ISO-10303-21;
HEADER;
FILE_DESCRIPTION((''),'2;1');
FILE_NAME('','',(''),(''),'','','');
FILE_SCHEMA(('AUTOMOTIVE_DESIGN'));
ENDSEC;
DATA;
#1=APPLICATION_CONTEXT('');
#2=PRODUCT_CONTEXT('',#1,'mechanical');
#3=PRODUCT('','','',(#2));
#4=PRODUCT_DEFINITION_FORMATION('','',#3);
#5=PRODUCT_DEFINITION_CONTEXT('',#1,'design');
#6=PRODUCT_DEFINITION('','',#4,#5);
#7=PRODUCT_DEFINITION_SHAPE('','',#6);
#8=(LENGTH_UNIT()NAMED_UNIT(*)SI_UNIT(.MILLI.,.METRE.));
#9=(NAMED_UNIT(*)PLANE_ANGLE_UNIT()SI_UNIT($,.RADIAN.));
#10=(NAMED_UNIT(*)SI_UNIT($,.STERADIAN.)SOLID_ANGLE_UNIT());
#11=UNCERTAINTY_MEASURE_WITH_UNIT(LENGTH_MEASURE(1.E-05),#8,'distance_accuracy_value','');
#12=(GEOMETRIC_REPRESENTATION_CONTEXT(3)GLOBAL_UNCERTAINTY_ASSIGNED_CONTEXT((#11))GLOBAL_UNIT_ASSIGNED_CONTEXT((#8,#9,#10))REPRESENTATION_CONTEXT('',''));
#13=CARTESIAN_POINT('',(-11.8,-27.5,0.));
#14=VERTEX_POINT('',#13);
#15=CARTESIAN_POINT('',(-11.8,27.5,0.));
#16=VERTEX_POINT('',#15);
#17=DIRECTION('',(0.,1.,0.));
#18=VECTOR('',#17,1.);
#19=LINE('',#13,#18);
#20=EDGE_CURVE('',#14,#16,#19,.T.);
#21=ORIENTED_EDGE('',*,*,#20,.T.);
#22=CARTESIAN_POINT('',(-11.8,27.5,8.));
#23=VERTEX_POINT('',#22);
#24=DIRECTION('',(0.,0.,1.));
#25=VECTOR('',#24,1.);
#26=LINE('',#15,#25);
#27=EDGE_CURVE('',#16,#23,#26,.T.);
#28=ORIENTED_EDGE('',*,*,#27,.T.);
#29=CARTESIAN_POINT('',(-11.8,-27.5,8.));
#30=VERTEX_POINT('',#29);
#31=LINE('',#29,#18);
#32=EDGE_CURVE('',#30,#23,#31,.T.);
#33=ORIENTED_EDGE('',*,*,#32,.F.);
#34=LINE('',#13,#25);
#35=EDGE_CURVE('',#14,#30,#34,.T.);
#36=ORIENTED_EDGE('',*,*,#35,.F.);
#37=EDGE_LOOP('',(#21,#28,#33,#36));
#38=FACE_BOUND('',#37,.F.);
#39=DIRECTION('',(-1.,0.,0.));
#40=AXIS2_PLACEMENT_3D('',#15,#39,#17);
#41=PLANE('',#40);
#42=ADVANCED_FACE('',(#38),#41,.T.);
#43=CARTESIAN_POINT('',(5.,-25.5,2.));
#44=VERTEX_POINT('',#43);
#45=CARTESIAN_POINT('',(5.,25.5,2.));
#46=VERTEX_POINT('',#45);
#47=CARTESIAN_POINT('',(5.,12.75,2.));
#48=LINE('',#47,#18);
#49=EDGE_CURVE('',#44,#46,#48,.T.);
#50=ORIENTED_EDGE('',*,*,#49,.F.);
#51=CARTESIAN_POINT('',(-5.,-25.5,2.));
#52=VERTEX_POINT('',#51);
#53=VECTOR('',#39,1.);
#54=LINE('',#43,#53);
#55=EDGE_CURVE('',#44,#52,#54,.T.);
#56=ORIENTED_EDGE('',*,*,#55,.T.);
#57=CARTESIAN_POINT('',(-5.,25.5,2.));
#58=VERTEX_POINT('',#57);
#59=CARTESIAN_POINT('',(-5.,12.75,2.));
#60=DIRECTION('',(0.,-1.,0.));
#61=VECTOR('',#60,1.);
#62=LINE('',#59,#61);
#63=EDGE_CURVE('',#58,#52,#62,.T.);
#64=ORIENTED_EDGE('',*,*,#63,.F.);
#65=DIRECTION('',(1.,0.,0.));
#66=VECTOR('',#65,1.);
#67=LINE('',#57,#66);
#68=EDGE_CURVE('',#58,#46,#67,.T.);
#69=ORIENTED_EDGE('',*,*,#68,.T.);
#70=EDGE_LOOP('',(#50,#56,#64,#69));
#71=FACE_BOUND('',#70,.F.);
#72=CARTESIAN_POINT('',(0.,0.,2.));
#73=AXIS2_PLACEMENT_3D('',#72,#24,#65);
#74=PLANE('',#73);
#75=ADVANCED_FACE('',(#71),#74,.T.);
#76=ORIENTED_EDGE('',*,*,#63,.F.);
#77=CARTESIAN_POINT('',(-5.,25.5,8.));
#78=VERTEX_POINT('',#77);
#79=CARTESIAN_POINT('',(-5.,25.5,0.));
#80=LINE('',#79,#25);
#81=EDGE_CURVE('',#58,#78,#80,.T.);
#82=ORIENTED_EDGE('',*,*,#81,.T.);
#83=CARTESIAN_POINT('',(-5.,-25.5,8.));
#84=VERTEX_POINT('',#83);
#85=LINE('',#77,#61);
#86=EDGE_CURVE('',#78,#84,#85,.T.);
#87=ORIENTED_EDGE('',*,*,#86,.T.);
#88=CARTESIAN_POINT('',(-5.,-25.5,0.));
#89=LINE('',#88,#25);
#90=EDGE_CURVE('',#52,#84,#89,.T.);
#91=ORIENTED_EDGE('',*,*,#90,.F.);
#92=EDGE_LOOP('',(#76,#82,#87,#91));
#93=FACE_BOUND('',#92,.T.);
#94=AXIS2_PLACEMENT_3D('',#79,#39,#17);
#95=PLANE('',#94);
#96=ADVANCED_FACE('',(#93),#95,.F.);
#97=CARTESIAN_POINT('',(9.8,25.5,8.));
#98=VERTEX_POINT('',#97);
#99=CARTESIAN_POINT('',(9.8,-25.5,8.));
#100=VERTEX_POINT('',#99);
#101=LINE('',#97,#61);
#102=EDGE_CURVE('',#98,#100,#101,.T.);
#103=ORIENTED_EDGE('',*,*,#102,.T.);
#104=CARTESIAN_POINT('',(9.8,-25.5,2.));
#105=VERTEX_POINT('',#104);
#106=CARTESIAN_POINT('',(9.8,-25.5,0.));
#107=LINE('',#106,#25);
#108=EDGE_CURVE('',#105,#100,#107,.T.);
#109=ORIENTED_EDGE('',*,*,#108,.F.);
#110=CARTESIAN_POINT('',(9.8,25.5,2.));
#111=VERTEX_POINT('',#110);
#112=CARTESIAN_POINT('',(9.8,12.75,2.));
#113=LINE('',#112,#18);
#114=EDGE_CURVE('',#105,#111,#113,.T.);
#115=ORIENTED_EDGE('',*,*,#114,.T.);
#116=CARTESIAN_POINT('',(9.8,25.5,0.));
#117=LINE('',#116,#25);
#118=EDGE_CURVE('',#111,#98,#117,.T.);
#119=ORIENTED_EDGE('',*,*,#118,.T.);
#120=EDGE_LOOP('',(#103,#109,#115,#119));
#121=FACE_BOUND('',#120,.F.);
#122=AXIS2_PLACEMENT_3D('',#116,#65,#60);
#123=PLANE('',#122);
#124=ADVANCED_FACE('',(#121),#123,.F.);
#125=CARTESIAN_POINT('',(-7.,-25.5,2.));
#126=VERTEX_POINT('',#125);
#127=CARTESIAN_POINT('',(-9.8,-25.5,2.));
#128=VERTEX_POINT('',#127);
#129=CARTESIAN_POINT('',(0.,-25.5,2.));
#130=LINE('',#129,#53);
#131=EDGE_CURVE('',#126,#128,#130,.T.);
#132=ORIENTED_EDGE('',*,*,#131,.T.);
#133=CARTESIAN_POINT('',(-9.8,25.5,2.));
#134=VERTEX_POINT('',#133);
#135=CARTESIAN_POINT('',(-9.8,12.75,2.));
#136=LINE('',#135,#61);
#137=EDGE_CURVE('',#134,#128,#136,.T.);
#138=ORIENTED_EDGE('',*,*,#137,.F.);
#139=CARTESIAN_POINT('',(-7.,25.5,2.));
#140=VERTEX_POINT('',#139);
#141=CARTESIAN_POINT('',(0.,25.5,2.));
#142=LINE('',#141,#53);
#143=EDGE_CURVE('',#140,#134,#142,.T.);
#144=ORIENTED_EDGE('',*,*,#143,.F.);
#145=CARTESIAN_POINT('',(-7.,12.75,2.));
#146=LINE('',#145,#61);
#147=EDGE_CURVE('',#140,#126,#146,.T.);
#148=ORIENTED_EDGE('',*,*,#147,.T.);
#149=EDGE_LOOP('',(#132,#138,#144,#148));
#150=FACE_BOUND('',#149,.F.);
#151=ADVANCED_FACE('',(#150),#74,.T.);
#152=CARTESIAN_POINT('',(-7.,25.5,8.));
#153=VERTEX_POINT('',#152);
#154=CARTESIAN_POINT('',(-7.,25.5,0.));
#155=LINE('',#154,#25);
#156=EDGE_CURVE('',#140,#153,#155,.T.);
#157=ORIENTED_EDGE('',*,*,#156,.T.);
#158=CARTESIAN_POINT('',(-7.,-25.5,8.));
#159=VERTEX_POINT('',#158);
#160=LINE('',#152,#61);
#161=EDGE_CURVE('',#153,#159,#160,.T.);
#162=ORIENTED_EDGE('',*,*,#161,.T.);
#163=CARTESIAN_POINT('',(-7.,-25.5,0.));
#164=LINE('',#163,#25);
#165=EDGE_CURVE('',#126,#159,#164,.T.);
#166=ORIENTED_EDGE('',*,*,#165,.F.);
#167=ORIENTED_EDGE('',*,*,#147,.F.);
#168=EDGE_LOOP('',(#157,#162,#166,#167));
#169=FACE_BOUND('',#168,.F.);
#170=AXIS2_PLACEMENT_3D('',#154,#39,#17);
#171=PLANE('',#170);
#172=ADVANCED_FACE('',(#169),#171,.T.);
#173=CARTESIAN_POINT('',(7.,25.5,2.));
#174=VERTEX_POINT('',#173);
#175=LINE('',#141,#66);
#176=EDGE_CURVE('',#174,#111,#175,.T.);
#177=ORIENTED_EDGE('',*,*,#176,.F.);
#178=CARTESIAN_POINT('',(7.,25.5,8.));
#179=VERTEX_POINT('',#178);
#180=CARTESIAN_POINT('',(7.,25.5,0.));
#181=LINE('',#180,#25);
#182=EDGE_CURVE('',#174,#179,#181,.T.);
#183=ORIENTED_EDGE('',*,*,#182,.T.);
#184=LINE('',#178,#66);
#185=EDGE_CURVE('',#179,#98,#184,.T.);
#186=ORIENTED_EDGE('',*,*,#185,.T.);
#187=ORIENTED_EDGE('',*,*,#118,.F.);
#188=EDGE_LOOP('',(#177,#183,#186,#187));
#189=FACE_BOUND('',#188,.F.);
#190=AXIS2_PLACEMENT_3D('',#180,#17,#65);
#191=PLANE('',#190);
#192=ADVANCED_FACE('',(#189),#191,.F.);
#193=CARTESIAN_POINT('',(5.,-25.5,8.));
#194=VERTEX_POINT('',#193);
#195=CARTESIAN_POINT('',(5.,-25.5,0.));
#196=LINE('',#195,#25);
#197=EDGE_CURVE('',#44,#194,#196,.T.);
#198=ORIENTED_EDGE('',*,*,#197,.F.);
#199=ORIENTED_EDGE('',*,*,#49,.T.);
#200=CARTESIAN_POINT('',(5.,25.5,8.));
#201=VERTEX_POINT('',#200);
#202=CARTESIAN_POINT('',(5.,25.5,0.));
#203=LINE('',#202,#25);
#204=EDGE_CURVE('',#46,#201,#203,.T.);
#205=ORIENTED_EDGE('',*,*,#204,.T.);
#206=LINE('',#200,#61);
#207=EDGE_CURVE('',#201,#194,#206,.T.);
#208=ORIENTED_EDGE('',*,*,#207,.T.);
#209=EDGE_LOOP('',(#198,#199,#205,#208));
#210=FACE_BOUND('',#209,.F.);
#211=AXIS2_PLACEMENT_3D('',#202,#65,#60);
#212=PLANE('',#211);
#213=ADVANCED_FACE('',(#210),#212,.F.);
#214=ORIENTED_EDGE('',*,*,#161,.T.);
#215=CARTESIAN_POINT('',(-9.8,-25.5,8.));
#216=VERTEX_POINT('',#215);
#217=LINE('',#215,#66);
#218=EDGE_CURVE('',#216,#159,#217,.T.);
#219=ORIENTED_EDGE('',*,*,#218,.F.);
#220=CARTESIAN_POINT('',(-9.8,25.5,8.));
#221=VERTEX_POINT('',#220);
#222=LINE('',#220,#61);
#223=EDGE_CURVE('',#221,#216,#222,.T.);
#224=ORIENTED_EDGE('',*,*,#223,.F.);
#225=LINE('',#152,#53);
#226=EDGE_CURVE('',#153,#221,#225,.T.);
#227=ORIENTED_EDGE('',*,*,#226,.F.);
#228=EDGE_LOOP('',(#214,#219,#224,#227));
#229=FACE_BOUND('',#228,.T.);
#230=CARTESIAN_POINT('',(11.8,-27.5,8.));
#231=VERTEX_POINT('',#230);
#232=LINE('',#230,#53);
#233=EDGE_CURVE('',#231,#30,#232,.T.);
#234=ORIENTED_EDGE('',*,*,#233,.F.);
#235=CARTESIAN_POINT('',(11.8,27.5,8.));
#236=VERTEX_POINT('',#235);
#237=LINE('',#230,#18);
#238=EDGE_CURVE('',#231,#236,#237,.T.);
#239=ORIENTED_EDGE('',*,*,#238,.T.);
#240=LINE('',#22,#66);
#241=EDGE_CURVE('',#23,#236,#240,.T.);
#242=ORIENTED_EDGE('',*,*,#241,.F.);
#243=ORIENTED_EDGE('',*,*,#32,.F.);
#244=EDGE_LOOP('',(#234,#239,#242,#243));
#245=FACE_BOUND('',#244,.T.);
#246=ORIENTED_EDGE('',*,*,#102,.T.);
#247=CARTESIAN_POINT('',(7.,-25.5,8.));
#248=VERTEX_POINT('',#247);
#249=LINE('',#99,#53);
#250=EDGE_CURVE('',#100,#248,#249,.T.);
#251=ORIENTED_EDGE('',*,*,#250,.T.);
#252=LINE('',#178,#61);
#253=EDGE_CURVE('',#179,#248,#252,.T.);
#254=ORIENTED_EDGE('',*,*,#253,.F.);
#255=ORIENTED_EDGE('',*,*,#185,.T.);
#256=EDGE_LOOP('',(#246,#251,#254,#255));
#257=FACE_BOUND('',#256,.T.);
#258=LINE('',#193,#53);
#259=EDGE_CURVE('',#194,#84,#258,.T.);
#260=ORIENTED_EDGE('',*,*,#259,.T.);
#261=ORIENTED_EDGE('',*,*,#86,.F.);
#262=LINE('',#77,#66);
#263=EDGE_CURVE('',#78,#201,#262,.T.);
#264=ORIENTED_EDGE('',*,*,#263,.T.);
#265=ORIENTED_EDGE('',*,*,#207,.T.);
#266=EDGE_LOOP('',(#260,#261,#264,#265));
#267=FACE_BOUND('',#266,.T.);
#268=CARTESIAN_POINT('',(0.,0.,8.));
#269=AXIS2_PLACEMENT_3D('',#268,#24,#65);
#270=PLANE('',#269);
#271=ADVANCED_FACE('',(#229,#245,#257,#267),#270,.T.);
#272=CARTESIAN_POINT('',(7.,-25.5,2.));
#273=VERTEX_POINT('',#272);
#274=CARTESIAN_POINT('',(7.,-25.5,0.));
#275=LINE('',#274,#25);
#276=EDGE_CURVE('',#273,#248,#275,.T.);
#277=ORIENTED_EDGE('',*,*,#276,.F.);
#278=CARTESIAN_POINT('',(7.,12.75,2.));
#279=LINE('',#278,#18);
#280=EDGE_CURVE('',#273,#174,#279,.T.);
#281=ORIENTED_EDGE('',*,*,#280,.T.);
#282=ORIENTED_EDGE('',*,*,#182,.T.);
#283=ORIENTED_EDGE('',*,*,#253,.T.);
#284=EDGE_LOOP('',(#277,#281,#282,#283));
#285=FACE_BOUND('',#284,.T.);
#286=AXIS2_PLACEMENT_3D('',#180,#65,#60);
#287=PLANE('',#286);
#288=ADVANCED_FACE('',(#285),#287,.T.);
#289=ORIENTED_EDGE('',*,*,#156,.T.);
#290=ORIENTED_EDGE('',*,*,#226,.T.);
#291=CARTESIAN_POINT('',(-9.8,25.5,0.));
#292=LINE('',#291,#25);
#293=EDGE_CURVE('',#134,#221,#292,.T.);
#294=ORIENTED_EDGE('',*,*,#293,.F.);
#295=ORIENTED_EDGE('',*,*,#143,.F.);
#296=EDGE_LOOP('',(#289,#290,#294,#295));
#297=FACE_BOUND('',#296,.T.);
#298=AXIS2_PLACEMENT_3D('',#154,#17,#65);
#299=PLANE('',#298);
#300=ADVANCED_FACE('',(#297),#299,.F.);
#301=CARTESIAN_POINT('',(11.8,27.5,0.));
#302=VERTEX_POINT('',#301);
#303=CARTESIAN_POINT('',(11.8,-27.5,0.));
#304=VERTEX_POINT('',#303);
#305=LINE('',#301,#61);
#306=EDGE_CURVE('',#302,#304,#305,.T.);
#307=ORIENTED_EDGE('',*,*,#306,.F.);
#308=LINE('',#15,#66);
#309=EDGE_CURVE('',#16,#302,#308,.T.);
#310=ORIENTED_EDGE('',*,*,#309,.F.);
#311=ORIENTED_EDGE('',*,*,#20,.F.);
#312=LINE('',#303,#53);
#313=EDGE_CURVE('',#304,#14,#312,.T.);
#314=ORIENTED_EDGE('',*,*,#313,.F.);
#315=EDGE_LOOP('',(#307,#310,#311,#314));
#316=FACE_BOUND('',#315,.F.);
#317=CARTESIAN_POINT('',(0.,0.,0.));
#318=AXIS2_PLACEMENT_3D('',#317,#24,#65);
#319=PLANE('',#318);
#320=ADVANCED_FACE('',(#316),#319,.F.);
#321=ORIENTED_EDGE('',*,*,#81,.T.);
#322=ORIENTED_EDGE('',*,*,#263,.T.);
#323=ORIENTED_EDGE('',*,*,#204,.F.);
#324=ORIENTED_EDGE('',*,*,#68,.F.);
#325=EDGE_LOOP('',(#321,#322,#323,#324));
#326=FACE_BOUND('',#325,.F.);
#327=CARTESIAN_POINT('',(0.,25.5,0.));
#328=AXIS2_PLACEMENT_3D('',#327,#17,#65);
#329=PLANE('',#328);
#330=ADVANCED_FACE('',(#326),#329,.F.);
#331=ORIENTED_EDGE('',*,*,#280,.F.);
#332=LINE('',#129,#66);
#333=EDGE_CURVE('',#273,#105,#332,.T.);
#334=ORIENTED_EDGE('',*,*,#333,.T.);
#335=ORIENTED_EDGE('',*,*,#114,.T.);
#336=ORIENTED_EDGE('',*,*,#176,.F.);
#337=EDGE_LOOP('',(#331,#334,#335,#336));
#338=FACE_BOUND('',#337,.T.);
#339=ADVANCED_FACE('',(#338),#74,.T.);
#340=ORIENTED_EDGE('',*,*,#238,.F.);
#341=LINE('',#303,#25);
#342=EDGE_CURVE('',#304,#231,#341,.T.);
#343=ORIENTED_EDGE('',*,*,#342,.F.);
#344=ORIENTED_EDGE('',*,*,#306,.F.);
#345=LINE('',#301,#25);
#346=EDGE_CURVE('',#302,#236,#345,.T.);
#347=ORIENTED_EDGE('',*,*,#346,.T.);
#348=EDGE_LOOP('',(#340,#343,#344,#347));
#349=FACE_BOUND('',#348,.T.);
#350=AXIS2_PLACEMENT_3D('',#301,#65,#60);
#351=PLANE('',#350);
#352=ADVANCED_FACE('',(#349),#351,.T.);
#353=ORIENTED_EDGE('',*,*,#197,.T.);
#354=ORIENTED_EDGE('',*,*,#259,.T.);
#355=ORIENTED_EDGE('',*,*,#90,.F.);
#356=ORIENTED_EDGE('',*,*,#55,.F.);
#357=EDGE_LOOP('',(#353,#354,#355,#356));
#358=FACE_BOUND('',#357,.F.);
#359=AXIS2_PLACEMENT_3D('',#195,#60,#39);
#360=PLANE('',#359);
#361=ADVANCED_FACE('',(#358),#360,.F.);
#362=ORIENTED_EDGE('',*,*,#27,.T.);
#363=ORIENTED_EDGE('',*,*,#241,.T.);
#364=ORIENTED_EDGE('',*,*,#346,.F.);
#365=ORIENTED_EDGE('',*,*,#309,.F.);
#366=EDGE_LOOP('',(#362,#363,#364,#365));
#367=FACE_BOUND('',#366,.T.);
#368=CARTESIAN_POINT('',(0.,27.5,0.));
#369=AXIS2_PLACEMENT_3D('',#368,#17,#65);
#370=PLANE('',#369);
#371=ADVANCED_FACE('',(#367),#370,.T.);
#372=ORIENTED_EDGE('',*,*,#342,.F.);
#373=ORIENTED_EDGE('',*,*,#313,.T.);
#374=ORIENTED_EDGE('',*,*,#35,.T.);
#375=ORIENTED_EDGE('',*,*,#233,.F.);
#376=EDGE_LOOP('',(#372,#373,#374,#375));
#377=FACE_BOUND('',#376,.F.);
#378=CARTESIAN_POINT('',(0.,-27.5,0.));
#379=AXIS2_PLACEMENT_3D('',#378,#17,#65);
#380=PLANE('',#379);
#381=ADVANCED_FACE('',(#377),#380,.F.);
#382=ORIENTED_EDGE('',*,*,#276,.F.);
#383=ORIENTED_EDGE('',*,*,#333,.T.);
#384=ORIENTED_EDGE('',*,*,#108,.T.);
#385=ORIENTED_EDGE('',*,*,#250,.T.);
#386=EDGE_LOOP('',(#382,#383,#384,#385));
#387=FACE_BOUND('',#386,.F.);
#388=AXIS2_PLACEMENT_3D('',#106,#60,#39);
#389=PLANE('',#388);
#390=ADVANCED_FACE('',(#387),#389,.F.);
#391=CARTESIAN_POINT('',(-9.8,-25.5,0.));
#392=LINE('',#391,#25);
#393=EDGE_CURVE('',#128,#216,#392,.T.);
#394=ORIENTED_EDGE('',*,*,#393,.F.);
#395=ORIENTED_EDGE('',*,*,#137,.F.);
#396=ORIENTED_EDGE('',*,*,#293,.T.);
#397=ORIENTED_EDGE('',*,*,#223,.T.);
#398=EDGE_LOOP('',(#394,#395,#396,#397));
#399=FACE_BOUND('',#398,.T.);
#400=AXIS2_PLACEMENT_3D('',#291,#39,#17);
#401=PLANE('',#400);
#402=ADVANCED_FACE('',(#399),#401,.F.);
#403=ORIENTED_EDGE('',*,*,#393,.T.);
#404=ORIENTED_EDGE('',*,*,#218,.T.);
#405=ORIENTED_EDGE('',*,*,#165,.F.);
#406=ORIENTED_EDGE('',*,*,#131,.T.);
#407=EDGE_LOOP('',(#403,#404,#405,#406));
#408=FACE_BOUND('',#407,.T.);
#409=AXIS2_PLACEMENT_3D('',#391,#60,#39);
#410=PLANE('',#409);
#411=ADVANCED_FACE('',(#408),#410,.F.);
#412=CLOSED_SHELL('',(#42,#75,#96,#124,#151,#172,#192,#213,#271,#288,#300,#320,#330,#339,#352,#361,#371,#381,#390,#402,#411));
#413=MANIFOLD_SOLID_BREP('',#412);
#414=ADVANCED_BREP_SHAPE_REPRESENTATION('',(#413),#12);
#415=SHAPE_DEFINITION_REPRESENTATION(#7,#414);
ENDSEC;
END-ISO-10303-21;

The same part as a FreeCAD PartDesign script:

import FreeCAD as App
import Part
import Sketcher


def add_polygon(sketch, points):
    """Adds a closed chain of lines whose ends are joined by coincident constraints."""
    first, n = sketch.GeometryCount, len(points)
    for a, b in zip(points, points[1:] + points[:1]):
        sketch.addGeometry(Part.LineSegment(App.Vector(*a, 0), App.Vector(*b, 0)), False)
    for i in range(n):
        sketch.addConstraint(Sketcher.Constraint("Coincident", first + i, 2, first + (i + 1) % n, 1))

doc = App.newDocument("Part")
body = doc.addObject("PartDesign::Body", "Body")

sketch1 = body.newObject("Sketcher::SketchObject", "Sketch")
sketch1.AttachmentSupport = (doc.getObject("XY_Plane"), [""])
sketch1.MapMode = "FlatFace"
add_polygon(sketch1, [(0, 26), (0, -26), (12, -26), (12, 26)])
sketch1.addConstraint([
    Sketcher.Constraint("Vertical", 0),
    Sketcher.Constraint("Horizontal", 1),
    Sketcher.Constraint("Vertical", 2),
    Sketcher.Constraint("Horizontal", 3),
    Sketcher.Constraint("Symmetric", 0, 2, 3, 2, -1, 1),
    Sketcher.Constraint("DistanceY", 0, 2, 0, 1, 51.0),
    Sketcher.Constraint("DistanceX", 1, 1, 1, 2, 11.8),
])
pad1 = body.newObject("PartDesign::Pad", "Pad")
pad1.Profile = sketch1
pad1.Length = 2

sketch2 = body.newObject("Sketcher::SketchObject", "Sketch001")
sketch2.AttachmentSupport = (doc.getObject("XY_Plane"), [""])
sketch2.MapMode = "FlatFace"
add_polygon(sketch2, [(0, 27.5), (0, 25.5), (5, 25.5), (5, -25.5), (0, -25.5), (0, -27.5), (11.8, -27.5), (11.8, 27.5)])
add_polygon(sketch2, [(7, 25.5), (9.8, 25.5), (9.8, -25.5), (7, -25.5)])
sketch2.addConstraint([
    Sketcher.Constraint("Vertical", 0),
    Sketcher.Constraint("Horizontal", 1),
    Sketcher.Constraint("Vertical", 2),
    Sketcher.Constraint("Horizontal", 3),
    Sketcher.Constraint("Vertical", 4),
    Sketcher.Constraint("Horizontal", 5),
    Sketcher.Constraint("Vertical", 6),
    Sketcher.Constraint("Horizontal", 7),
    Sketcher.Constraint("Horizontal", 8),
    Sketcher.Constraint("Vertical", 9),
    Sketcher.Constraint("Horizontal", 10),
    Sketcher.Constraint("Vertical", 11),
    Sketcher.Constraint("Symmetric", 0, 2, 3, 2, -1, 1),
    Sketcher.Constraint("Symmetric", 4, 2, 7, 2, -1),
    Sketcher.Constraint("Horizontal", 1, 2, 8, 2),
    Sketcher.Constraint("Horizontal", 3, 2, 9, 2),
    Sketcher.Constraint("DistanceX", 1, 1, 1, 2, 5.0),
    Sketcher.Constraint("DistanceY", 0, 2, 0, 1, 2.0),
    Sketcher.Constraint("DistanceY", 2, 2, 2, 1, 51.0),
    Sketcher.Constraint("DistanceX", 8, 1, 8, 2, 2.8),
    Sketcher.Constraint("DistanceX", 8, 2, 6, 2, 2.0),
    Sketcher.Constraint("DistanceX", 2, 2, 10, 2, 2.0),
])
pad2 = body.newObject("PartDesign::Pad", "Pad001")
pad2.Profile = sketch2
pad2.Length = 8
doc.recompute()

mirrored = body.newObject("PartDesign::Mirrored", "Mirrored")
mirrored.Originals = [pad1, pad2]
mirrored.MirrorPlane = (doc.getObject("YZ_Plane"), [""])
body.Tip = mirrored

doc.recompute()
